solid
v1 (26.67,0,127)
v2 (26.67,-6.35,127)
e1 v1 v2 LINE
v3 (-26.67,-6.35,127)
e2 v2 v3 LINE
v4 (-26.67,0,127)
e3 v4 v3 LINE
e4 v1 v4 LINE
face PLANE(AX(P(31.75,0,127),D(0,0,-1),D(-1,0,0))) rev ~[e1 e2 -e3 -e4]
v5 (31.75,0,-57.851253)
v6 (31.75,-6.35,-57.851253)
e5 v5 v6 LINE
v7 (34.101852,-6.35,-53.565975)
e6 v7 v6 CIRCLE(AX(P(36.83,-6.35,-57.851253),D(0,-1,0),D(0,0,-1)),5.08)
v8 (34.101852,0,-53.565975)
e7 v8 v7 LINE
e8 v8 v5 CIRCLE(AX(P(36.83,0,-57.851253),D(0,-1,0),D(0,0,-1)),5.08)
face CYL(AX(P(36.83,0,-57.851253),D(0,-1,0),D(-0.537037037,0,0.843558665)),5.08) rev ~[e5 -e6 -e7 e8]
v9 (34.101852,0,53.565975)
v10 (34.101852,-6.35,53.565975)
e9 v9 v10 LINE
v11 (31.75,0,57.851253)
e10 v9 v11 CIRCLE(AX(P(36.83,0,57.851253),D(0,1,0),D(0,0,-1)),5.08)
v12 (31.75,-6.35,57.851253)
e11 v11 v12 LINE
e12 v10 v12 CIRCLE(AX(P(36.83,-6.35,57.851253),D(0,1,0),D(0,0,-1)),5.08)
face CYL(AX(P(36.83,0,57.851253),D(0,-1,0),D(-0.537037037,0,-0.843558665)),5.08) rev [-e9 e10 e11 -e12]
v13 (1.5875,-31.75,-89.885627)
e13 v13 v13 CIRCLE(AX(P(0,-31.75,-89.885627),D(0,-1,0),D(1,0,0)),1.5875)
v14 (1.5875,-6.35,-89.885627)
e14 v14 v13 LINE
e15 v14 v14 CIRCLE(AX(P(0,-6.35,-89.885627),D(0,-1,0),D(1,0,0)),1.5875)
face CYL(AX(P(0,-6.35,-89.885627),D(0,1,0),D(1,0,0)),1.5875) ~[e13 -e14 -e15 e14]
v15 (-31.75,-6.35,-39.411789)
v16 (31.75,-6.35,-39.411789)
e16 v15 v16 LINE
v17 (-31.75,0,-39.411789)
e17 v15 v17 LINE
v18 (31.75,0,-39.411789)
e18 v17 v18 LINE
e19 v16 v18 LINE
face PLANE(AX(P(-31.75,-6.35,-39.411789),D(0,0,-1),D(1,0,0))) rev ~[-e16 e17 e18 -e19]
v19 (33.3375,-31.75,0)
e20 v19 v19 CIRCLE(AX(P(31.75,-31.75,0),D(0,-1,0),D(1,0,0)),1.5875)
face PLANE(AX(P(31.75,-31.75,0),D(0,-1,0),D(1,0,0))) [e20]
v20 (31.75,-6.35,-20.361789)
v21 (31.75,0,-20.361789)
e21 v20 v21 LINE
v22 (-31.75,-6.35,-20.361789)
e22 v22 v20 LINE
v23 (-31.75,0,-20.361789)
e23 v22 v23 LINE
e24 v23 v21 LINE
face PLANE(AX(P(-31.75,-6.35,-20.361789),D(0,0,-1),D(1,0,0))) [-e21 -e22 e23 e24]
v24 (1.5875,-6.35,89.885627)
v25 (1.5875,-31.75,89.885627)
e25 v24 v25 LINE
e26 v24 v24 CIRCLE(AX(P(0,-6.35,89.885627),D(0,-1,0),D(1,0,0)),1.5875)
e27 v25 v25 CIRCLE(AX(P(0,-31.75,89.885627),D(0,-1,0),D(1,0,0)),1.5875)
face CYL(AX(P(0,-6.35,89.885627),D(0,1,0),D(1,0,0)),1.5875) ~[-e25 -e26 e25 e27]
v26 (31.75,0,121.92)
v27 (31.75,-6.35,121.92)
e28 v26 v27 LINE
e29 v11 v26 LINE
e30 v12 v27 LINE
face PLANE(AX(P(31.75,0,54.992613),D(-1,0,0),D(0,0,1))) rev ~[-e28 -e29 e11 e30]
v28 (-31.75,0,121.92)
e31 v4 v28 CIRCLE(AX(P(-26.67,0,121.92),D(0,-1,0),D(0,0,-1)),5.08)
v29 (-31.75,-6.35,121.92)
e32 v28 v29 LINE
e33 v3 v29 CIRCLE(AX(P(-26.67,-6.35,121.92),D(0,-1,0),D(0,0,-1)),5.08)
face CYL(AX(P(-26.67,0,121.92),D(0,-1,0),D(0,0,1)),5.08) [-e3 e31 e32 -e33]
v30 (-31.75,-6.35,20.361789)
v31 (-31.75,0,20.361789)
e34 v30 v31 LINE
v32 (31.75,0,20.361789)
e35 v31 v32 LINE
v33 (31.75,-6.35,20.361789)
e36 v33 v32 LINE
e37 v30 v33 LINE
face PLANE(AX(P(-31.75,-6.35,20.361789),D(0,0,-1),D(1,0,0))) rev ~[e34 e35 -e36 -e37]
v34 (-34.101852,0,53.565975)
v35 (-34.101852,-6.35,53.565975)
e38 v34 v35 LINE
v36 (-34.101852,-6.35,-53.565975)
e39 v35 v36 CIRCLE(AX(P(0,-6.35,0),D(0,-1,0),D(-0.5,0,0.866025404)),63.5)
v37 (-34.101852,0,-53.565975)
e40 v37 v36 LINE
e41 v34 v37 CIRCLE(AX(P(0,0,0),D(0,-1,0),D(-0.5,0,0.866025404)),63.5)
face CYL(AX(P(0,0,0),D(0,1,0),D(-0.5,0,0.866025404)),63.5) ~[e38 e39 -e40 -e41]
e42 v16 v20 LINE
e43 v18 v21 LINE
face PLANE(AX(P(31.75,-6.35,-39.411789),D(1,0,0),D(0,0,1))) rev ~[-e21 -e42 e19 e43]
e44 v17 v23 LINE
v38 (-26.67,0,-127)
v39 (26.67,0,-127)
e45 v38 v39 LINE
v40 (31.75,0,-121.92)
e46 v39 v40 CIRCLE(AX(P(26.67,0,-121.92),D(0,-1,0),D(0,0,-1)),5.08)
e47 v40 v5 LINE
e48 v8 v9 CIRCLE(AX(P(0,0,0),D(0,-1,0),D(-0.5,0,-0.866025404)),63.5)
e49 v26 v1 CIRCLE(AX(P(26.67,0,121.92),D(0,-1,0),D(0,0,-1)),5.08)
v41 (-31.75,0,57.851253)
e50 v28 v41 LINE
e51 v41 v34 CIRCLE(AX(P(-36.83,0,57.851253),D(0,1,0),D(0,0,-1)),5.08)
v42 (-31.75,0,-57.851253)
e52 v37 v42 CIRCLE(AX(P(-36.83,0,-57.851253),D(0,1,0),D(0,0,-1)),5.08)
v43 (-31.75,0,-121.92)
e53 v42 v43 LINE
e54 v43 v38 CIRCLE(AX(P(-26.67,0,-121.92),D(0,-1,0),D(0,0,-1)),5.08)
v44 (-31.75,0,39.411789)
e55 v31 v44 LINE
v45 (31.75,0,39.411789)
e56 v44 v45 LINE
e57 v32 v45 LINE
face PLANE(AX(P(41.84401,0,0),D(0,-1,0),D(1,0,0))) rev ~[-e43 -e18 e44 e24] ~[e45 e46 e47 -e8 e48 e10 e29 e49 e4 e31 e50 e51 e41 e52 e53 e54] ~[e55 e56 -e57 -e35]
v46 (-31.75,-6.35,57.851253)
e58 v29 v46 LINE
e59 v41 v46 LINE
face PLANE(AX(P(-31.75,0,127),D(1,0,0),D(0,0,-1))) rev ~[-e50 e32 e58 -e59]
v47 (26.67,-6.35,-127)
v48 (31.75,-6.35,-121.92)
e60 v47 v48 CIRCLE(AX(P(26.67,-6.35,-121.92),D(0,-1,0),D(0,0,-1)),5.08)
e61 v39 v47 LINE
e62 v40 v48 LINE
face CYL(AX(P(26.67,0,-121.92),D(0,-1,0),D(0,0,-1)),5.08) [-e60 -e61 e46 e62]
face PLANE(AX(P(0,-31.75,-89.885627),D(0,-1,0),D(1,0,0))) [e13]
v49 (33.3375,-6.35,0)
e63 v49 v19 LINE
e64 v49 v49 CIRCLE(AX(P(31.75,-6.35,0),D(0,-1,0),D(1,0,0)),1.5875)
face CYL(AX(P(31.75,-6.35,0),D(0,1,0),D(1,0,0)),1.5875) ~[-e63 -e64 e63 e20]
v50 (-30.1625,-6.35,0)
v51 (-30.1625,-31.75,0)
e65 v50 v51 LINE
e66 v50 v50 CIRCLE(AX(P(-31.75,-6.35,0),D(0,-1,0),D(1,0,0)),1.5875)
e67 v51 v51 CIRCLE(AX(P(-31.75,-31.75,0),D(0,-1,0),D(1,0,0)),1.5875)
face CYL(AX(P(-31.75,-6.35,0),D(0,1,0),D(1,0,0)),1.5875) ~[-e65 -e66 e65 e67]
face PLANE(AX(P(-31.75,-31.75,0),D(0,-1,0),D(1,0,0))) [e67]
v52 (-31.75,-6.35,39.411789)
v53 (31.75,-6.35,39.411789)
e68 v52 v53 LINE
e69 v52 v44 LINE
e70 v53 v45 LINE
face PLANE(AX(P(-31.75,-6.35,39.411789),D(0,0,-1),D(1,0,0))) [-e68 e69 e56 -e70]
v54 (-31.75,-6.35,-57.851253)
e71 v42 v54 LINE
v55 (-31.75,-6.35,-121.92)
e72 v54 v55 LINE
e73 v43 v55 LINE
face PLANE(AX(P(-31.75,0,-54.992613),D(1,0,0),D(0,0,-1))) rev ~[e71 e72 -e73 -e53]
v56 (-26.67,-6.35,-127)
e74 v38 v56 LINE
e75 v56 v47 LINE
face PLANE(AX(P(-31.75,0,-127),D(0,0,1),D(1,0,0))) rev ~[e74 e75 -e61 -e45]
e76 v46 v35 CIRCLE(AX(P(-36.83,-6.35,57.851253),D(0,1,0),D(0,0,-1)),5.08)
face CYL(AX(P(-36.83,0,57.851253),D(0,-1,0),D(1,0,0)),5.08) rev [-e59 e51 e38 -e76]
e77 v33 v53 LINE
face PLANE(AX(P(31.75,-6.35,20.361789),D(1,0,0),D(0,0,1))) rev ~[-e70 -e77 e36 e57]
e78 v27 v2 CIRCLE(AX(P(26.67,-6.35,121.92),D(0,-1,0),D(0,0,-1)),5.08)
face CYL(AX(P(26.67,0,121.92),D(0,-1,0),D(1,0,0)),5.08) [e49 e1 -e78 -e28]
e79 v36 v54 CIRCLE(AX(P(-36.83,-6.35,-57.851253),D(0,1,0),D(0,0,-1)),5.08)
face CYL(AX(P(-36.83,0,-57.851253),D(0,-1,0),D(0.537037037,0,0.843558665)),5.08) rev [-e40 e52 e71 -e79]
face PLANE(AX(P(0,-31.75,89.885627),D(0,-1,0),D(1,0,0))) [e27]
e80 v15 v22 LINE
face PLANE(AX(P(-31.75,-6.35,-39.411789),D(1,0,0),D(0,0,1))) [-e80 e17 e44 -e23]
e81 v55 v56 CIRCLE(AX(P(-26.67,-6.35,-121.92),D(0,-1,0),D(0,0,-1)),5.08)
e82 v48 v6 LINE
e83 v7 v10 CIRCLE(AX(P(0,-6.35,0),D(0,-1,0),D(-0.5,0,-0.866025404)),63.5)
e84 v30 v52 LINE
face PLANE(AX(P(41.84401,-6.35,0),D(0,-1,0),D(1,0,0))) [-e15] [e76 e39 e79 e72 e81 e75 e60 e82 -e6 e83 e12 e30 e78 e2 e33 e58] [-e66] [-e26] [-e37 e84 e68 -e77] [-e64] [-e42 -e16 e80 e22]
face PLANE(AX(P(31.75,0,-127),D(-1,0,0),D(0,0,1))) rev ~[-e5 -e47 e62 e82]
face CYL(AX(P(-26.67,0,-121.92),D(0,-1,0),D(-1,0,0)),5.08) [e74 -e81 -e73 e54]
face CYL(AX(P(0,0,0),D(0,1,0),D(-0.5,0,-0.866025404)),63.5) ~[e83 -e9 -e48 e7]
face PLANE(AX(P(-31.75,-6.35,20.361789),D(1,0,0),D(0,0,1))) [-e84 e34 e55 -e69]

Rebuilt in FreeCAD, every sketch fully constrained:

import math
import FreeCAD as App
import Part
import Sketcher

V = App.Vector
Q = App.Units.Quantity


def edges_at(feature, points):
    """Names of the edges that pass closest to the given points."""
    edges = feature.Shape.Edges
    near = lambda p: min(range(len(edges)), key=lambda i: edges[i].distToShape(Part.Vertex(*p))[0])
    return sorted({f"Edge{near(p) + 1}" for p in points})

doc = App.newDocument("Part")
body = doc.addObject("PartDesign::Body", "Body")

# Sketch on XZ plane
sketch1 = doc.addObject("Sketcher::SketchObject", "Sketch")
body.addObject(sketch1)
sketch1.AttachmentSupport = (doc.XZ_Plane, [""])
sketch1.MapMode = "FlatFace"
sketch1.addGeometry([
    Part.ArcOfCircle(Part.Circle(V(0, 0, 0), V(0, 0, 1), 64), math.radians(-60), math.radians(60)),  # 0
    Part.LineSegment(V(32, 55, 0), V(32, 127, 0)),  # 1
    Part.LineSegment(V(32, 127, 0), V(-32, 127, 0)),  # 2
    Part.LineSegment(V(-32, 127, 0), V(-32, 55, 0)),  # 3
    Part.ArcOfCircle(Part.Circle(V(0, 0, 0), V(0, 0, 1), 64), math.radians(120), math.radians(240)),  # 4
    Part.LineSegment(V(-32, -55, 0), V(-32, -127, 0)),  # 5
    Part.LineSegment(V(-32, -127, 0), V(32, -127, 0)),  # 6
    Part.LineSegment(V(32, -127, 0), V(32, -55, 0)),  # 7
], False)
sketch1.addConstraint([
    Sketcher.Constraint("Coincident", 0, 2, 1, 1),
    Sketcher.Constraint("Coincident", 1, 2, 2, 1),
    Sketcher.Constraint("Coincident", 2, 2, 3, 1),
    Sketcher.Constraint("Coincident", 3, 2, 4, 1),
    Sketcher.Constraint("Coincident", 4, 2, 5, 1),
    Sketcher.Constraint("Coincident", 5, 2, 6, 1),
    Sketcher.Constraint("Coincident", 6, 2, 7, 1),
    Sketcher.Constraint("Coincident", 7, 2, 0, 1),
    Sketcher.Constraint("Vertical", 1),
    Sketcher.Constraint("Horizontal", 2),
    Sketcher.Constraint("Vertical", 3),
    Sketcher.Constraint("Vertical", 5),
    Sketcher.Constraint("Horizontal", 6),
    Sketcher.Constraint("Vertical", 7),
    Sketcher.Constraint("Coincident", 0, 3, -1, 1),
    Sketcher.Constraint("Coincident", 4, 3, -1, 1),
    Sketcher.Constraint("Equal", 0, 4),
    Sketcher.Constraint("Symmetric", 1, 2, 5, 2, -1, 1),
    Sketcher.Constraint("Horizontal", 0, 2, 3, 2),
    Sketcher.Constraint("Horizontal", 4, 2, 7, 2),
    Sketcher.Constraint("Radius", 0, Q("2.5 in")),
    Sketcher.Constraint("DistanceX", 2, 2, 2, 1, Q("2.5 in")),
    Sketcher.Constraint("DistanceY", -1, 1, 1, 2, Q("5 in")),
])
pad1 = doc.addObject("PartDesign::Pad", "Pad")
body.addObject(pad1)
pad1.Profile = sketch1
pad1.Length = Q("0.25 in")
doc.recompute()

fillet = doc.addObject("PartDesign::Fillet", "Fillet")
body.addObject(fillet)
fillet.Base = (pad1, edges_at(pad1, [
    (31.75, -3.175, 54.993),
    (-31.75, -3.175, 54.993),
    (-31.75, -3.175, -54.993),
    (31.75, -3.175, -54.993),
    (31.75, -3.175, 127),
    (-31.75, -3.175, 127),
    (31.75, -3.175, -127),
    (-31.75, -3.175, -127),
]))
fillet.Radius = Q("0.2 in")

# Sketch on XZ plane
sketch2 = doc.addObject("Sketcher::SketchObject", "Sketch001")
body.addObject(sketch2)
sketch2.AttachmentSupport = (doc.XZ_Plane, [""])
sketch2.MapMode = "FlatFace"
sketch2.AttachmentOffset = App.Placement(V(0, 0, 0.25 * 25.4), App.Rotation())
sketch2.addGeometry([
    Part.LineSegment(V(-32, 39, 0), V(-32, 20, 0)),  # 0
    Part.LineSegment(V(-32, 20, 0), V(32, 20, 0)),  # 1
    Part.LineSegment(V(32, 20, 0), V(32, 39, 0)),  # 2
    Part.LineSegment(V(32, 39, 0), V(-32, 39, 0)),  # 3
    Part.LineSegment(V(-32, -20, 0), V(-32, -39, 0)),  # 4
    Part.LineSegment(V(-32, -39, 0), V(32, -39, 0)),  # 5
    Part.LineSegment(V(32, -39, 0), V(32, -20, 0)),  # 6
    Part.LineSegment(V(32, -20, 0), V(-32, -20, 0)),  # 7
], False)
sketch2.addConstraint([
    Sketcher.Constraint("Coincident", 0, 2, 1, 1),
    Sketcher.Constraint("Coincident", 1, 2, 2, 1),
    Sketcher.Constraint("Coincident", 2, 2, 3, 1),
    Sketcher.Constraint("Coincident", 3, 2, 0, 1),
    Sketcher.Constraint("Coincident", 4, 2, 5, 1),
    Sketcher.Constraint("Coincident", 5, 2, 6, 1),
    Sketcher.Constraint("Coincident", 6, 2, 7, 1),
    Sketcher.Constraint("Coincident", 7, 2, 4, 1),
    Sketcher.Constraint("Vertical", 0),
    Sketcher.Constraint("Horizontal", 1),
    Sketcher.Constraint("Vertical", 2),
    Sketcher.Constraint("Horizontal", 3),
    Sketcher.Constraint("Vertical", 4),
    Sketcher.Constraint("Horizontal", 5),
    Sketcher.Constraint("Vertical", 6),
    Sketcher.Constraint("Horizontal", 7),
    Sketcher.Constraint("Symmetric", 2, 2, 4, 2, -1, 1),
    Sketcher.Constraint("Symmetric", 0, 2, 6, 2, -1, 1),
    Sketcher.Constraint("Vertical", 3, 2, 4, 2),
    Sketcher.Constraint("DistanceX", 1, 1, 1, 2, Q("2.5 in")),
    Sketcher.Constraint("DistanceY", 0, 2, 0, 1, Q("0.75 in")),
    Sketcher.Constraint("DistanceY", -1, 1, 0, 2, Q("20.361789 mm")),
])
pocket1 = doc.addObject("PartDesign::Pocket", "Pocket")
body.addObject(pocket1)
pocket1.Profile = sketch2
pocket1.Length = Q("1 in")

# Sketch on XZ plane
sketch3 = doc.addObject("Sketcher::SketchObject", "Sketch002")
body.addObject(sketch3)
sketch3.AttachmentSupport = (doc.XZ_Plane, [""])
sketch3.MapMode = "FlatFace"
sketch3.AttachmentOffset = App.Placement(V(0, 0, 0.25 * 25.4), App.Rotation())
sketch3.addGeometry([
    Part.Circle(V(-31.8, 0, 0), V(0, 0, 1), 1.6),
    Part.Circle(V(31.8, 0, 0), V(0, 0, 1), 1.6),
    Part.Circle(V(0, -89.9, 0), V(0, 0, 1), 1.6),
    Part.Circle(V(0, 89.9, 0), V(0, 0, 1), 1.6),
], False)
sketch3.addConstraint([
    Sketcher.Constraint("Equal", 0, 1),
    Sketcher.Constraint("Equal", 1, 2),
    Sketcher.Constraint("Equal", 2, 3),
    Sketcher.Constraint("Symmetric", 0, 3, 1, 3, -1, 1),
    Sketcher.Constraint("Symmetric", 2, 3, 3, 3, -1, 1),
    Sketcher.Constraint("PointOnObject", 0, 3, -1),
    Sketcher.Constraint("PointOnObject", 2, 3, -2),
    Sketcher.Constraint("Diameter", 0, Q("0.125 in")),
    Sketcher.Constraint("DistanceX", 0, 3, 1, 3, Q("2.5 in")),
    Sketcher.Constraint("DistanceY", 2, 3, -1, 1, Q("89.885627 mm")),
])
pad2 = doc.addObject("PartDesign::Pad", "Pad001")
body.addObject(pad2)
pad2.Profile = sketch3
pad2.Length = Q("1 in")

doc.recompute()
